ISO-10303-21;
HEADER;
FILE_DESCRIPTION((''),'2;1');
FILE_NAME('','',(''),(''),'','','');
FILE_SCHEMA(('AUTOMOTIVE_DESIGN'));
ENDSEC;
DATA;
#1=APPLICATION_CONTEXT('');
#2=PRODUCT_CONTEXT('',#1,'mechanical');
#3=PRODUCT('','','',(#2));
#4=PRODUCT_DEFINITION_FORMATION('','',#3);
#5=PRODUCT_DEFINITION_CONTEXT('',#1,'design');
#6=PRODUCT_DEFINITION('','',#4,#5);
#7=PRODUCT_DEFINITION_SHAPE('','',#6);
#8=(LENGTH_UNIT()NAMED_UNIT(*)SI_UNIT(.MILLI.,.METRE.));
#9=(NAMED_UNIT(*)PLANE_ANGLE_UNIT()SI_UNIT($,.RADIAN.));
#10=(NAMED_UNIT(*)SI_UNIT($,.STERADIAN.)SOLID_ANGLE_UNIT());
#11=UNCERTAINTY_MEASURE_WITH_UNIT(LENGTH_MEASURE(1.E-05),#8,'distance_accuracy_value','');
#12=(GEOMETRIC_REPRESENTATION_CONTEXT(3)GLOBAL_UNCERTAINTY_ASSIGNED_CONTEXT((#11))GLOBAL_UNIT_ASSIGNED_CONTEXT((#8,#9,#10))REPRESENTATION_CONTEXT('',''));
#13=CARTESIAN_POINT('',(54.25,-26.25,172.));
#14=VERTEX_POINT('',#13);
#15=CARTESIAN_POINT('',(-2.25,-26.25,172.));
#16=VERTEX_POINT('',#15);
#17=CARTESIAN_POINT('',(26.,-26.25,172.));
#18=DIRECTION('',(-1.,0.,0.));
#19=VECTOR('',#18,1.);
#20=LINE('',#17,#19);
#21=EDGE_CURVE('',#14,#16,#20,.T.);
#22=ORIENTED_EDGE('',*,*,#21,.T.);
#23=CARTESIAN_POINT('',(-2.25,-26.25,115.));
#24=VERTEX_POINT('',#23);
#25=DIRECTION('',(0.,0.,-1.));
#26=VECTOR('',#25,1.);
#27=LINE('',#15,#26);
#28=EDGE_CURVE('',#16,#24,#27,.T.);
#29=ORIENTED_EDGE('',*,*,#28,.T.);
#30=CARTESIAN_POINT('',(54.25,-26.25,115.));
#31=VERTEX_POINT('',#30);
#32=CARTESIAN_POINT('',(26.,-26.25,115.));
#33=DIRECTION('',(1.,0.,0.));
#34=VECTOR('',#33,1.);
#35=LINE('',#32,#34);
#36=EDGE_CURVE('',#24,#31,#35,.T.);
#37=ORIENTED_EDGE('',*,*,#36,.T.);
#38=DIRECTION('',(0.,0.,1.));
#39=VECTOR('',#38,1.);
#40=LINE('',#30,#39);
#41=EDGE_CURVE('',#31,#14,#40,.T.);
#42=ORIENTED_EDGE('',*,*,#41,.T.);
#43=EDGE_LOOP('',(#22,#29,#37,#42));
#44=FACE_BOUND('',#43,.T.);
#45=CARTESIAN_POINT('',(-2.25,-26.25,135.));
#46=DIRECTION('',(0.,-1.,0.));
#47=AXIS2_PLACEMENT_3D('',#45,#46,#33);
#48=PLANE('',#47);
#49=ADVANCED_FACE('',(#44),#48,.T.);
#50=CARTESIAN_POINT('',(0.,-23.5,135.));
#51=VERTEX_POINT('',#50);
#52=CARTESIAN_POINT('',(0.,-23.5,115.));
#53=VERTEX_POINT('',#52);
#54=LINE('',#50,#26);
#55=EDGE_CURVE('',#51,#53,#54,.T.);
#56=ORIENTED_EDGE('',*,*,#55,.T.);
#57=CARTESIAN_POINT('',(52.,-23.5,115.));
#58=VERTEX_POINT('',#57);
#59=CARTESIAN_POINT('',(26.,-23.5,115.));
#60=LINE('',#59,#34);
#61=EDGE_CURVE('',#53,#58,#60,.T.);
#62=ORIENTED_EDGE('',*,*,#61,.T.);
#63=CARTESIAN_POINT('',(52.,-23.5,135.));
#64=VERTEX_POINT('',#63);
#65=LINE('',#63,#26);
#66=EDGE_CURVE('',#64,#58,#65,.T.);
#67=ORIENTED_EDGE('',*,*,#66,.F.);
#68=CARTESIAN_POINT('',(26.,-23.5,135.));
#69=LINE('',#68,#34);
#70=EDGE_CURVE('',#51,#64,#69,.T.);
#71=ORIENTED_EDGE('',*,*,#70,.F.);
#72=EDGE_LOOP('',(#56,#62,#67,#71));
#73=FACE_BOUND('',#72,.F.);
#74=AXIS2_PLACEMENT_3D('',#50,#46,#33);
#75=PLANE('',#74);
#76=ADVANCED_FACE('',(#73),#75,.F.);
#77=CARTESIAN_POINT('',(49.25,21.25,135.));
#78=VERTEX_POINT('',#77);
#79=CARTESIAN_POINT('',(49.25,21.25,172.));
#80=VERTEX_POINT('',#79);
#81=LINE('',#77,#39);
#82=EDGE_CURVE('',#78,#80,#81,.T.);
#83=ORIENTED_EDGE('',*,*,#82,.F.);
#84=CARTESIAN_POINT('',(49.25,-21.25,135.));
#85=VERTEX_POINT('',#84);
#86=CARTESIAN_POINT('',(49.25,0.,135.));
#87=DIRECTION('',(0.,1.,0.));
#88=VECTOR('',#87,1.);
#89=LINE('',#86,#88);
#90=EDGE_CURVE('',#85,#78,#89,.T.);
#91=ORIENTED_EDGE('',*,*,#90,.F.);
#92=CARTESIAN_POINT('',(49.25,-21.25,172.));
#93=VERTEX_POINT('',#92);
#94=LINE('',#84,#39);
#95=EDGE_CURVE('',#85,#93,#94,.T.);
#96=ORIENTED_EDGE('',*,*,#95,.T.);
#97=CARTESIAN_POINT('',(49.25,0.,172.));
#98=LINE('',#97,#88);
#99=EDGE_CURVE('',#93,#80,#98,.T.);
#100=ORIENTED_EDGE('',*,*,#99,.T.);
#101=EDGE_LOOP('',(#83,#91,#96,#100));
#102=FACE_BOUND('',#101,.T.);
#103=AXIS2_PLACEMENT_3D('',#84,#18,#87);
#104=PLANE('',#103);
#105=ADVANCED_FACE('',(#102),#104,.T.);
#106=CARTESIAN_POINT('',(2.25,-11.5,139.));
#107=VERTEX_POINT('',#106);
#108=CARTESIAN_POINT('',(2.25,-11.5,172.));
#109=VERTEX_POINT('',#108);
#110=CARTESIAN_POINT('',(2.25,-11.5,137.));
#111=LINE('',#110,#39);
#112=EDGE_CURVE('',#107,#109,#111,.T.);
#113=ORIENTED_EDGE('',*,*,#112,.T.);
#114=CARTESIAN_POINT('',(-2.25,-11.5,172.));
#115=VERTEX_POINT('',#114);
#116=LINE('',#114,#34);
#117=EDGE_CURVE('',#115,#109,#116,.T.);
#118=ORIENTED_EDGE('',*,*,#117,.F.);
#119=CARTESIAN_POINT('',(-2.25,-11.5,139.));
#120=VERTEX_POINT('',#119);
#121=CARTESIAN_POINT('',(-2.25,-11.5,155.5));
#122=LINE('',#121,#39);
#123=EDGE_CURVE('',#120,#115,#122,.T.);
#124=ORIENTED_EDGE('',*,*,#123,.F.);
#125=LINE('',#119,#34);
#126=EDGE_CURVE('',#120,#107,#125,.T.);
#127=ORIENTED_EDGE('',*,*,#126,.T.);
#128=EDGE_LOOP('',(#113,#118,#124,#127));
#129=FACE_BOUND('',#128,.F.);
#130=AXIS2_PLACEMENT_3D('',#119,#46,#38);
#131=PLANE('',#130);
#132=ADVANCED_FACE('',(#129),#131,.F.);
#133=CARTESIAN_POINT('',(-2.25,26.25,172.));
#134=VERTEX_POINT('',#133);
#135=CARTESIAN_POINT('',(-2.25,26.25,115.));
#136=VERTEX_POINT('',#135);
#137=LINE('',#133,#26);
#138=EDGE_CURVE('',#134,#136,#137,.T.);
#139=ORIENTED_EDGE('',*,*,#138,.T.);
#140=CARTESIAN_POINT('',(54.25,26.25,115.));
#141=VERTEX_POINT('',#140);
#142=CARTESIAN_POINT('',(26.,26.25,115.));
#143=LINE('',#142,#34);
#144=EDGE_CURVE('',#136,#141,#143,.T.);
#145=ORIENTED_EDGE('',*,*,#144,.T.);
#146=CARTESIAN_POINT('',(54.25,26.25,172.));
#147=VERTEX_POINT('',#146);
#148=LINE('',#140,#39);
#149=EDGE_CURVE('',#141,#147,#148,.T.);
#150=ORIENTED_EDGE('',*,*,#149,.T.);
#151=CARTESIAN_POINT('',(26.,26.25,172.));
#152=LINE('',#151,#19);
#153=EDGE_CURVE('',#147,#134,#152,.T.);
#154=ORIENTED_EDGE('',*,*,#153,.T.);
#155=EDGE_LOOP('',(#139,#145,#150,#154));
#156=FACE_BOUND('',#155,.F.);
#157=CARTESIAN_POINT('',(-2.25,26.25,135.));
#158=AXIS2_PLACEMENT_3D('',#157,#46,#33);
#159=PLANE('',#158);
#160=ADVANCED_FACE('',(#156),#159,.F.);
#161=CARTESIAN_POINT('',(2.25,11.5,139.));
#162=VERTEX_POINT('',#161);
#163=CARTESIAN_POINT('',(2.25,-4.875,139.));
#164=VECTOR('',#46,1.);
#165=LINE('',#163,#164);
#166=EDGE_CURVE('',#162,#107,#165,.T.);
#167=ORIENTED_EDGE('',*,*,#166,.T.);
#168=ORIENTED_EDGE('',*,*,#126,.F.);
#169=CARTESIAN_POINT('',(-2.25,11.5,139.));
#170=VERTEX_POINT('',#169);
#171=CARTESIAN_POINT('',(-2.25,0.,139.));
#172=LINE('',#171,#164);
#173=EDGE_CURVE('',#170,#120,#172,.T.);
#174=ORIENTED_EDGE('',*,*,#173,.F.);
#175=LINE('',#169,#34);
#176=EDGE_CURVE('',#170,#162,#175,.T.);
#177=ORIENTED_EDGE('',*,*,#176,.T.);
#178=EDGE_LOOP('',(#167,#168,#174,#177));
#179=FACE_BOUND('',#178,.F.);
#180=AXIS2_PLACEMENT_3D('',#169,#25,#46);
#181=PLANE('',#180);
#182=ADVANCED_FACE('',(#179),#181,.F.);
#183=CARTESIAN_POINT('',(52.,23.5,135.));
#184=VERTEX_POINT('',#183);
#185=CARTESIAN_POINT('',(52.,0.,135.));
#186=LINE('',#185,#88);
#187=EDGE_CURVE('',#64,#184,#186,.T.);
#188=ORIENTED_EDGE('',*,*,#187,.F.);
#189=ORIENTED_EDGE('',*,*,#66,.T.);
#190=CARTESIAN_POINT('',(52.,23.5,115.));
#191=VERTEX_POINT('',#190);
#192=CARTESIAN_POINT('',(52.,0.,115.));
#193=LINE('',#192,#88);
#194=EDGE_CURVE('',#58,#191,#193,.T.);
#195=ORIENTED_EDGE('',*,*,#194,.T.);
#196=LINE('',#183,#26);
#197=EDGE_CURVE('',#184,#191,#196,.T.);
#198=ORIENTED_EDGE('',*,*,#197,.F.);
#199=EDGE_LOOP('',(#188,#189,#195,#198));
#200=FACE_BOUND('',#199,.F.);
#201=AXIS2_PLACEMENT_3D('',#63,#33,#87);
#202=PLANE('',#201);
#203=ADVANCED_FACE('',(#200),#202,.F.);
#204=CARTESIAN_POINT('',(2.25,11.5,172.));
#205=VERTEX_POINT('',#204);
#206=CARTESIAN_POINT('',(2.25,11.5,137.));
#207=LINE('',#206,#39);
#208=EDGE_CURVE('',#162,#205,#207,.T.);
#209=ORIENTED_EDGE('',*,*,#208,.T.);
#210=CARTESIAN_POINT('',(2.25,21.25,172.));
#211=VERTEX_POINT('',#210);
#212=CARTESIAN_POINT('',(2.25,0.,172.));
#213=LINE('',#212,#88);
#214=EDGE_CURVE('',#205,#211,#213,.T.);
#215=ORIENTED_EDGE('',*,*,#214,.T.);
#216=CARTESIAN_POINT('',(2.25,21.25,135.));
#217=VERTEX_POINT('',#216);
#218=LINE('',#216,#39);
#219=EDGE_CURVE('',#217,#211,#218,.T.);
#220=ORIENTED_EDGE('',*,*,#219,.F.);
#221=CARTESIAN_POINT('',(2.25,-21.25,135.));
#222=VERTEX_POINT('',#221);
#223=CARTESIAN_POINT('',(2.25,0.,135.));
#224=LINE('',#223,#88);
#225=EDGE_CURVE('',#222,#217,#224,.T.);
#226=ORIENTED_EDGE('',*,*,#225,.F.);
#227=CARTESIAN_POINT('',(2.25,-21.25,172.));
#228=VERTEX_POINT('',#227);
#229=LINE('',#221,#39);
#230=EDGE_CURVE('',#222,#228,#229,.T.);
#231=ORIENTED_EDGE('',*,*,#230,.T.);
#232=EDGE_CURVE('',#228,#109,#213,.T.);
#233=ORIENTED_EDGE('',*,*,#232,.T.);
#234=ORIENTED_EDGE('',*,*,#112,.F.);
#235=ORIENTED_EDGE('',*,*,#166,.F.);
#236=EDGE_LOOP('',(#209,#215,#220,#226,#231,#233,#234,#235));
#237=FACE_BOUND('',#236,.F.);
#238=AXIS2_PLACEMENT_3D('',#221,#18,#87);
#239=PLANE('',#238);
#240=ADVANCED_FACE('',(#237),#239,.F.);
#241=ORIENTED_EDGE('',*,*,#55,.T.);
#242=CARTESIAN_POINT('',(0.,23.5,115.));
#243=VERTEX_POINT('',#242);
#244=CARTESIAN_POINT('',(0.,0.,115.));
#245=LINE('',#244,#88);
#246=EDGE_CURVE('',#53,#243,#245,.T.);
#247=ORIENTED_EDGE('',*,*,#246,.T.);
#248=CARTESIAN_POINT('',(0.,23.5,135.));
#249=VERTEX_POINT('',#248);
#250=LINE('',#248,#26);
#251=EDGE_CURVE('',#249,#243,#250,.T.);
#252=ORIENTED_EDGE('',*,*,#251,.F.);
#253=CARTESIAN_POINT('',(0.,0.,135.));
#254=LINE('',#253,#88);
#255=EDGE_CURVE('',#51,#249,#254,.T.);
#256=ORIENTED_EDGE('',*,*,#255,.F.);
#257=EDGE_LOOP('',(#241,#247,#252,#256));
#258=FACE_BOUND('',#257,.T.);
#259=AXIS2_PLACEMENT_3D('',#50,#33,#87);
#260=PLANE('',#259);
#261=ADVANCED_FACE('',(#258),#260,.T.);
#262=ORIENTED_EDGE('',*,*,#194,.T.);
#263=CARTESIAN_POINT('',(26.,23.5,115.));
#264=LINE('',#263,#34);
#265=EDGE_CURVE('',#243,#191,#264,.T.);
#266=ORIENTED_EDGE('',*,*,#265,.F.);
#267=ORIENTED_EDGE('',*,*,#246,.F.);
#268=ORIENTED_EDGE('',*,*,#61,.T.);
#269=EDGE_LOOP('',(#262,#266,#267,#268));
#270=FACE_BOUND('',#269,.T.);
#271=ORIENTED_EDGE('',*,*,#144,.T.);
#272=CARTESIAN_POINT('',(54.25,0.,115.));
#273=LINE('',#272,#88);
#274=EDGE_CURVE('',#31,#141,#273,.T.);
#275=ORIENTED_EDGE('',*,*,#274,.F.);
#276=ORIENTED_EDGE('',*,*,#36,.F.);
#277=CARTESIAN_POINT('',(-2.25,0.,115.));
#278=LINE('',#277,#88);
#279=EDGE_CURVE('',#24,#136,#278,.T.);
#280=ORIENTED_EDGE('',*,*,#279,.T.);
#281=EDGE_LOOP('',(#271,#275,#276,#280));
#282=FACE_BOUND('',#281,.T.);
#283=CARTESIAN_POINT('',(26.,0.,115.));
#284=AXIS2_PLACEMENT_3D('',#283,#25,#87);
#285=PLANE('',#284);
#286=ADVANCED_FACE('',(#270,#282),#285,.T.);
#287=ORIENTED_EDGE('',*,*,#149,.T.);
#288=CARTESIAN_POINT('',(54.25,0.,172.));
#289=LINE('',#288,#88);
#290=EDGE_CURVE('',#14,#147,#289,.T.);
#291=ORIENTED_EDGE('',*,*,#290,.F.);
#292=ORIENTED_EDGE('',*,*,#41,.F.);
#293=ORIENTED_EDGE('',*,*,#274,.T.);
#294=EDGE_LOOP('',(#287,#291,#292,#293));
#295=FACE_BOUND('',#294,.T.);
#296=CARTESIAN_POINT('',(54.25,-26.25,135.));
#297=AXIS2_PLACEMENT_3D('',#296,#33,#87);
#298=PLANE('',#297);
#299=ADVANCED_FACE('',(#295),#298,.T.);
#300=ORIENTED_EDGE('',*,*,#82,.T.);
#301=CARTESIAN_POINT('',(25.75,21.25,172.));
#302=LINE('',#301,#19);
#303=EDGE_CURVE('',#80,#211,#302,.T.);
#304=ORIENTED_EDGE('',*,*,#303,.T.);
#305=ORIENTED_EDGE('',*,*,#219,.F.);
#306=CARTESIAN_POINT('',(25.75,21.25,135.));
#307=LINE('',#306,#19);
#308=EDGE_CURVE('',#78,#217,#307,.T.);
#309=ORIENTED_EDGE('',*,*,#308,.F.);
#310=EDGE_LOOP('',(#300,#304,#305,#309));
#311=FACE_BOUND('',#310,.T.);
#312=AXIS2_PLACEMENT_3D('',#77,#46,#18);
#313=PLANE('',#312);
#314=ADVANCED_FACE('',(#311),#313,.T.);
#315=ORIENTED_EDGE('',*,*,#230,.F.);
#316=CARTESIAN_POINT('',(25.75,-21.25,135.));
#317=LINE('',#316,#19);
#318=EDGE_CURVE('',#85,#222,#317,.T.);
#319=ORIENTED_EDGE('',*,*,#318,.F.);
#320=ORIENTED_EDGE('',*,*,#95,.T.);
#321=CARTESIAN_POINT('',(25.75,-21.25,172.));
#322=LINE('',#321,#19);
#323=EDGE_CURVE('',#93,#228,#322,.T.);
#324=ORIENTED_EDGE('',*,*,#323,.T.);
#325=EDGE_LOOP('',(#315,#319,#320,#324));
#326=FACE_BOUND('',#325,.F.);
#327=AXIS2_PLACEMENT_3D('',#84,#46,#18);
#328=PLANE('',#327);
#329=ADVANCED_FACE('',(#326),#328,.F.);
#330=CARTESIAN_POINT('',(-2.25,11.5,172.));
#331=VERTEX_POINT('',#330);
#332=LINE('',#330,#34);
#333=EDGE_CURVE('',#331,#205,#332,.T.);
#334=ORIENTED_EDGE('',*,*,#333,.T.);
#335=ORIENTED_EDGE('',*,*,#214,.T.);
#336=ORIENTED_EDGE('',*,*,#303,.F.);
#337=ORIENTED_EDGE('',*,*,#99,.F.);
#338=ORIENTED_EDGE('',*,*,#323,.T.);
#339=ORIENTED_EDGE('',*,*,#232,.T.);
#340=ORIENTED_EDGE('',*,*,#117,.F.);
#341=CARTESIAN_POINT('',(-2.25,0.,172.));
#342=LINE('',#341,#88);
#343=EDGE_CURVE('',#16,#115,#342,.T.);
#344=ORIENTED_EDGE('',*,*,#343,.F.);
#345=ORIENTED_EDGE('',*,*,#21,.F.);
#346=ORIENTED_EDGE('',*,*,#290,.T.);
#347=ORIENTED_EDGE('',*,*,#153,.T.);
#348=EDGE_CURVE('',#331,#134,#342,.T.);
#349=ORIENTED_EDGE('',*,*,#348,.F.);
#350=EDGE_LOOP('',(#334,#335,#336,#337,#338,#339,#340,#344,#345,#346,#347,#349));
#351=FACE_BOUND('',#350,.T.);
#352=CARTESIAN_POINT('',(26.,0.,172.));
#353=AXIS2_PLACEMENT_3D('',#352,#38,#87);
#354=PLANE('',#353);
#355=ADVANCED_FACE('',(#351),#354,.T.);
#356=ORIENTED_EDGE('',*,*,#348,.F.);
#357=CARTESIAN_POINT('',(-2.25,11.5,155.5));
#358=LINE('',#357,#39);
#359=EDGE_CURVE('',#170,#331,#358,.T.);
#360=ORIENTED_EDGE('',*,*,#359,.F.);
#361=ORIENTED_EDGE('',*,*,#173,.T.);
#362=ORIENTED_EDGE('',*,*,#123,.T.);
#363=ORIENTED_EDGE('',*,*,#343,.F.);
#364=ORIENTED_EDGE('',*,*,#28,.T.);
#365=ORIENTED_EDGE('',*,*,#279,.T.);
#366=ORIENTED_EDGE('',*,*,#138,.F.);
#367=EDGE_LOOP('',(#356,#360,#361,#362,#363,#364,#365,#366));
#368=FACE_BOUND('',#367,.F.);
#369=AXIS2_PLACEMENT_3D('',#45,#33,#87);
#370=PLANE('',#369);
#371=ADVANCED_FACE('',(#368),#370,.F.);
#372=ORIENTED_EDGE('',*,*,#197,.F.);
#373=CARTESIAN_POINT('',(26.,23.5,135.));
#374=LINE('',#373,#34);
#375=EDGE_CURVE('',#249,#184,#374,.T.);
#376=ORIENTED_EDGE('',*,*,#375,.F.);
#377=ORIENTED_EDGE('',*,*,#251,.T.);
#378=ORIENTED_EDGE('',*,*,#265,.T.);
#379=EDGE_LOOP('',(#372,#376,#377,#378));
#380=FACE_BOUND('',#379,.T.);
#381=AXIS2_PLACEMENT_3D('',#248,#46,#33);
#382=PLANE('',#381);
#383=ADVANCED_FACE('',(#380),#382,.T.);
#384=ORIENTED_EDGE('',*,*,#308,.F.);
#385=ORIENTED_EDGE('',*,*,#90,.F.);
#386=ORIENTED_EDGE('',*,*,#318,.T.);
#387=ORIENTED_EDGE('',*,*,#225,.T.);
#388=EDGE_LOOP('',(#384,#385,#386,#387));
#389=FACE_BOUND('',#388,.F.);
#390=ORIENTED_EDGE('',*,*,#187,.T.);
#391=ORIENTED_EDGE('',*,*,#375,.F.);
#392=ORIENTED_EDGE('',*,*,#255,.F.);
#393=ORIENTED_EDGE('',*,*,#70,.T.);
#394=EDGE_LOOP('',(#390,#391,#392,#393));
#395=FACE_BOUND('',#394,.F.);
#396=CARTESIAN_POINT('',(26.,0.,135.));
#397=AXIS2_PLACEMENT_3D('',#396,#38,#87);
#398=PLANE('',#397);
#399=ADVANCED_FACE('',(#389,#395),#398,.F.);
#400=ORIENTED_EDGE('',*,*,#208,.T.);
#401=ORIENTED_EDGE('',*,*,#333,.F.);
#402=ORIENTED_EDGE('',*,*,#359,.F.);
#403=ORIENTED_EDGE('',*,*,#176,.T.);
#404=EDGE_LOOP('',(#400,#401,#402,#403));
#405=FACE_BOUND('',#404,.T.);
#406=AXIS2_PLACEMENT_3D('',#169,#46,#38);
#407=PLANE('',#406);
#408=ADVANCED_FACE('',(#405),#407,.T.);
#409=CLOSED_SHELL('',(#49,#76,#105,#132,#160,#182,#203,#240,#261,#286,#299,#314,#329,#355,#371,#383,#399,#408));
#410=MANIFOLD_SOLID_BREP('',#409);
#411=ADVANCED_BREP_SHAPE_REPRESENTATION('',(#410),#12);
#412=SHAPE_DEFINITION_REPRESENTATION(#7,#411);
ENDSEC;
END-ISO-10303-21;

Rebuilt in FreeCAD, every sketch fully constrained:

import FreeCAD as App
import Part
import Sketcher
from FreeCAD import Vector
Q = App.Units.Quantity

doc = App.newDocument("Part")
body = doc.addObject("PartDesign::Body", "Body")

sketch1 = body.newObject("Sketcher::SketchObject", "Sketch")
sketch1.AttachmentSupport = (doc.getObject("XY_Plane"), [""])
sketch1.MapMode = "FlatFace"
sketch1.addGeometry([
    Part.LineSegment(Vector(-26.25, 2.25, 0), Vector(-26.25, -54.25, 0)),
    Part.LineSegment(Vector(-26.25, -54.25, 0), Vector(26.25, -54.25, 0)),
    Part.LineSegment(Vector(26.25, -54.25, 0), Vector(26.25, 2.25, 0)),
    Part.LineSegment(Vector(26.25, 2.25, 0), Vector(-26.25, 2.25, 0)),
    Part.LineSegment(Vector(21.25, -49.25, 0), Vector(-21.25, -49.25, 0)),
    Part.LineSegment(Vector(-21.25, -49.25, 0), Vector(-21.25, -2.25, 0)),
    Part.LineSegment(Vector(-21.25, -2.25, 0), Vector(21.25, -2.25, 0)),
    Part.LineSegment(Vector(21.25, -2.25, 0), Vector(21.25, -49.25, 0)),
], False)
sketch1.addConstraint([
    Sketcher.Constraint("Coincident", 0, 2, 1, 1),
    Sketcher.Constraint("Coincident", 1, 2, 2, 1),
    Sketcher.Constraint("Coincident", 2, 2, 3, 1),
    Sketcher.Constraint("Coincident", 3, 2, 0, 1),
    Sketcher.Constraint("Coincident", 4, 2, 5, 1),
    Sketcher.Constraint("Coincident", 5, 2, 6, 1),
    Sketcher.Constraint("Coincident", 6, 2, 7, 1),
    Sketcher.Constraint("Coincident", 7, 2, 4, 1),
    Sketcher.Constraint("Vertical", 0),
    Sketcher.Constraint("Horizontal", 1),
    Sketcher.Constraint("Vertical", 2),
    Sketcher.Constraint("Horizontal", 3),
    Sketcher.Constraint("Horizontal", 4),
    Sketcher.Constraint("Vertical", 5),
    Sketcher.Constraint("Horizontal", 6),
    Sketcher.Constraint("Vertical", 7),
    Sketcher.Constraint("DistanceY", 5, 1, 5, 2, Q("47 mm")),
    Sketcher.Constraint("DistanceX", 1, 1, 1, 2, Q("52.5 mm")),
    Sketcher.Constraint("DistanceX", 4, 2, 4, 1, Q("42.5 mm")),
    Sketcher.Constraint("DistanceY", 0, 2, 0, 1, Q("56.5 mm")),
    Sketcher.Constraint("DistanceX", 0, 2, 4, 2, Q("5 mm")),
    Sketcher.Constraint("DistanceY", 0, 2, 4, 2, Q("5 mm")),
    Sketcher.Constraint("DistanceX", 0, 2, -1, 1, Q("26.25 mm")),
    Sketcher.Constraint("DistanceY", 0, 2, -1, 1, Q("54.25 mm")),
])
pad1 = body.newObject("PartDesign::Pad", "Pad")
pad1.Profile = sketch1
pad1.Length = 37

sketch2 = body.newObject("Sketcher::SketchObject", "Sketch001")
sketch2.AttachmentSupport = (doc.getObject("XZ_Plane"), [""])
sketch2.MapMode = "FlatFace"
sketch2.AttachmentOffset = App.Placement(Vector(0, 0, -2.25), App.Rotation())
sketch2.addGeometry([
    Part.LineSegment(Vector(11.5, 37, 0), Vector(11.5, 4, 0)),
    Part.LineSegment(Vector(11.5, 4, 0), Vector(-11.5, 4, 0)),
    Part.LineSegment(Vector(-11.5, 4, 0), Vector(-11.5, 37, 0)),
    Part.LineSegment(Vector(-11.5, 37, 0), Vector(11.5, 37, 0)),
], False)
sketch2.addConstraint([
    Sketcher.Constraint("Coincident", 0, 2, 1, 1),
    Sketcher.Constraint("Coincident", 1, 2, 2, 1),
    Sketcher.Constraint("Coincident", 2, 2, 3, 1),
    Sketcher.Constraint("Coincident", 3, 2, 0, 1),
    Sketcher.Constraint("Vertical", 0),
    Sketcher.Constraint("Horizontal", 1),
    Sketcher.Constraint("Vertical", 2),
    Sketcher.Constraint("Horizontal", 3),
    Sketcher.Constraint("DistanceX", 1, 2, 1, 1, Q("23 mm")),
    Sketcher.Constraint("DistanceY", 0, 2, 0, 1, Q("33 mm")),
    Sketcher.Constraint("DistanceY", -1, 1, 0, 2, Q("4 mm")),
    Sketcher.Constraint("DistanceX", -1, 1, 0, 2, Q("11.5 mm")),
])
pocket1 = body.newObject("PartDesign::Pocket", "Pocket")
pocket1.Profile = sketch2
pocket1.Length = 5
pocket1.Reversed = True

sketch3 = body.newObject("Sketcher::SketchObject", "Sketch002")
sketch3.AttachmentSupport = (doc.getObject("XY_Plane"), [""])
sketch3.MapMode = "FlatFace"
sketch3.addGeometry([
    Part.LineSegment(Vector(-26.25, -54.25, 0), Vector(-26.25, 2.25, 0)),
    Part.LineSegment(Vector(-26.25, 2.25, 0), Vector(26.25, 2.25, 0)),
    Part.LineSegment(Vector(26.25, 2.25, 0), Vector(26.25, -54.25, 0)),
    Part.LineSegment(Vector(26.25, -54.25, 0), Vector(-26.25, -54.25, 0)),
    Part.LineSegment(Vector(23.5, 0, 0), Vector(-23.5, 0, 0)),
    Part.LineSegment(Vector(-23.5, 0, 0), Vector(-23.5, -52, 0)),
    Part.LineSegment(Vector(-23.5, -52, 0), Vector(23.5, -52, 0)),
    Part.LineSegment(Vector(23.5, -52, 0), Vector(23.5, 0, 0)),
], False)
sketch3.addConstraint([
    Sketcher.Constraint("Coincident", 0, 2, 1, 1),
    Sketcher.Constraint("Coincident", 1, 2, 2, 1),
    Sketcher.Constraint("Coincident", 2, 2, 3, 1),
    Sketcher.Constraint("Coincident", 3, 2, 0, 1),
    Sketcher.Constraint("Coincident", 4, 2, 5, 1),
    Sketcher.Constraint("Coincident", 5, 2, 6, 1),
    Sketcher.Constraint("Coincident", 6, 2, 7, 1),
    Sketcher.Constraint("Coincident", 7, 2, 4, 1),
    Sketcher.Constraint("Vertical", 0),
    Sketcher.Constraint("Horizontal", 1),
    Sketcher.Constraint("Vertical", 2),
    Sketcher.Constraint("Horizontal", 3),
    Sketcher.Constraint("Horizontal", 4),
    Sketcher.Constraint("Vertical", 5),
    Sketcher.Constraint("Horizontal", 6),
    Sketcher.Constraint("Vertical", 7),
    Sketcher.Constraint("Symmetric", 4, 2, 7, 2, -1, 1),
    Sketcher.Constraint("DistanceX", 4, 2, 4, 1, Q("47 mm")),
    Sketcher.Constraint("DistanceY", 5, 2, 5, 1, Q("52 mm")),
    Sketcher.Constraint("DistanceX", 1, 1, 1, 2, Q("52.5 mm")),
    Sketcher.Constraint("DistanceY", 0, 1, 0, 2, Q("56.5 mm")),
    Sketcher.Constraint("DistanceX", 0, 2, -1, 1, Q("26.25 mm")),
    Sketcher.Constraint("DistanceY", -1, 1, 0, 2, Q("2.25 mm")),
])
pad2 = body.newObject("PartDesign::Pad", "Pad001")
pad2.Profile = sketch3
pad2.Length = 20
pad2.Reversed = True
body2 = doc.addObject("PartDesign::Body", "Body001")
doc.recompute()

body.Placement = App.Placement(Vector(0, 0, 135), App.Rotation(Vector(0, 0, 1), 90))
boolean = body2.newObject("PartDesign::Boolean", "Boolean")
boolean.Type = "Fuse"
boolean.addObjects([body])

doc.recompute()
